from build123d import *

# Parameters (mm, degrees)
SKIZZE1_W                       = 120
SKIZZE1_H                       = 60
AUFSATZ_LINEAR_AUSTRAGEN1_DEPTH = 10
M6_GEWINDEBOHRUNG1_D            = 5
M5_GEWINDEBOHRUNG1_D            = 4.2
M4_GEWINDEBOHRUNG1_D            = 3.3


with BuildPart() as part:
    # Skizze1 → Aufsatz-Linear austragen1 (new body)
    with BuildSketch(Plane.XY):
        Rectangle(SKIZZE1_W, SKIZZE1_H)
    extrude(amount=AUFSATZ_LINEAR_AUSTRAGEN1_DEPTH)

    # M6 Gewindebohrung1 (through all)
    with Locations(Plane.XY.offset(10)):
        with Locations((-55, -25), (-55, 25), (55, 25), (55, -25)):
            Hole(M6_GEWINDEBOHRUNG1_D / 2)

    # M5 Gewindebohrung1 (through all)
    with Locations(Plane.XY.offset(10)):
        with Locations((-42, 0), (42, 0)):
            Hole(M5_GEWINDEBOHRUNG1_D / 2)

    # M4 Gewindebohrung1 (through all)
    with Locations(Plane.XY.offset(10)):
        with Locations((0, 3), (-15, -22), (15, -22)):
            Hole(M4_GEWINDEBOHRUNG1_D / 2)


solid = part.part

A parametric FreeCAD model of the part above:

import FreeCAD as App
import Part
import Sketcher
from FreeCAD import Vector
Q = App.Units.Quantity

doc = App.newDocument("Part")
params = doc.addObject("Spreadsheet::Sheet", "Params")
for row, (alias, value) in enumerate([
    ("sketch1_width", "120 mm"),
    ("sketch1_height", "60 mm"),
    ("pad1_length", "10 mm"),
    ("sketch2_diameter", "5 mm"),
    ("hole_diameter", "5 mm"),
    ("sketch3_diameter", "4.2 mm"),
    ("hole2_diameter", "4.2 mm"),
    ("sketch4_diameter", "3.3 mm"),
    ("hole3_diameter", "3.3 mm"),
], start=1):
    params.set(f"A{row}", alias)
    params.set(f"B{row}", "=" + value)
    params.setAlias(f"B{row}", alias)

body = doc.addObject("PartDesign::Body", "Body")

# Sketch on XY plane
sketch1 = body.newObject("Sketcher::SketchObject", "Sketch")
sketch1.AttachmentSupport = (doc.getObject("XY_Plane"), [""])
sketch1.MapMode = "FlatFace"
sketch1.addGeometry([
    Part.LineSegment(Vector(-60, 30, 0), Vector(-60, -30, 0)),
    Part.LineSegment(Vector(-60, -30, 0), Vector(60, -30, 0)),
    Part.LineSegment(Vector(60, -30, 0), Vector(60, 30, 0)),
    Part.LineSegment(Vector(60, 30, 0), Vector(-60, 30, 0)),
], False)
sketch1.addConstraint([
    Sketcher.Constraint("Coincident", 0, 2, 1, 1),
    Sketcher.Constraint("Coincident", 1, 2, 2, 1),
    Sketcher.Constraint("Coincident", 2, 2, 3, 1),
    Sketcher.Constraint("Coincident", 3, 2, 0, 1),
    Sketcher.Constraint("Vertical", 0),
    Sketcher.Constraint("Horizontal", 1),
    Sketcher.Constraint("Vertical", 2),
    Sketcher.Constraint("Horizontal", 3),
    Sketcher.Constraint("Symmetric", 0, 2, 2, 2, -1, 1),
    Sketcher.Constraint("DistanceX", 1, 1, 1, 2, Q("120 mm")),
    Sketcher.Constraint("DistanceY", 0, 2, 0, 1, Q("60 mm")),
])
sketch1.setExpression("Constraints[9]", "Params.sketch1_width")
sketch1.setExpression("Constraints[10]", "Params.sketch1_height")
pad1 = body.newObject("PartDesign::Pad", "Pad")
pad1.Profile = sketch1
pad1.setExpression("Length", "Params.pad1_length")

# Sketch on XY plane
sketch2 = body.newObject("Sketcher::SketchObject", "Sketch001")
sketch2.AttachmentSupport = (doc.getObject("XY_Plane"), [""])
sketch2.MapMode = "FlatFace"
sketch2.AttachmentOffset = App.Placement(Vector(0, 0, 10), App.Rotation())
sketch2.addGeometry([
    Part.Circle(Vector(-55, -25, 0), Vector(0, 0, 1), 2.5),
    Part.Circle(Vector(-55, 25, 0), Vector(0, 0, 1), 2.5),
    Part.Circle(Vector(55, 25, 0), Vector(0, 0, 1), 2.5),
    Part.Circle(Vector(55, -25, 0), Vector(0, 0, 1), 2.5),
], False)
sketch2.addConstraint([
    Sketcher.Constraint("Equal", 0, 1),
    Sketcher.Constraint("Equal", 1, 2),
    Sketcher.Constraint("Equal", 2, 3),
    Sketcher.Constraint("Symmetric", 0, 3, 2, 3, -1, 1),
    Sketcher.Constraint("Symmetric", 1, 3, 3, 3, -1, 1),
    Sketcher.Constraint("Symmetric", 1, 3, 2, 3, -2),
    Sketcher.Constraint("Diameter", 0, Q("5 mm")),
    Sketcher.Constraint("DistanceX", 0, 3, -1, 1, Q("55 mm")),
    Sketcher.Constraint("DistanceY", 0, 3, -1, 1, Q("25 mm")),
])
sketch2.setExpression("Constraints[6]", "Params.sketch2_diameter")
doc.recompute()
hole = body.newObject("PartDesign::Hole", "Hole")
hole.Profile = sketch2
hole.ThreadType = "None"
hole.setExpression("Diameter", "Params.hole_diameter")
hole.DepthType = "ThroughAll"

# Sketch on XY plane
sketch3 = body.newObject("Sketcher::SketchObject", "Sketch002")
sketch3.AttachmentSupport = (doc.getObject("XY_Plane"), [""])
sketch3.MapMode = "FlatFace"
sketch3.AttachmentOffset = App.Placement(Vector(0, 0, 10), App.Rotation())
sketch3.addGeometry([
    Part.Circle(Vector(-42, 0, 0), Vector(0, 0, 1), 2.1),
    Part.Circle(Vector(42, 0, 0), Vector(0, 0, 1), 2.1),
], False)
sketch3.addConstraint([
    Sketcher.Constraint("Equal", 0, 1),
    Sketcher.Constraint("Symmetric", 0, 3, 1, 3, -1, 1),
    Sketcher.Constraint("PointOnObject", 0, 3, -1),
    Sketcher.Constraint("Diameter", 0, Q("4.2 mm")),
    Sketcher.Constraint("DistanceX", 0, 3, -1, 1, Q("42 mm")),
])
sketch3.setExpression("Constraints[3]", "Params.sketch3_diameter")
doc.recompute()
hole2 = body.newObject("PartDesign::Hole", "Hole001")
hole2.Profile = sketch3
hole2.ThreadType = "None"
hole2.setExpression("Diameter", "Params.hole2_diameter")
hole2.DepthType = "ThroughAll"

# Sketch on XY plane
sketch4 = body.newObject("Sketcher::SketchObject", "Sketch003")
sketch4.AttachmentSupport = (doc.getObject("XY_Plane"), [""])
sketch4.MapMode = "FlatFace"
sketch4.AttachmentOffset = App.Placement(Vector(0, 0, 10), App.Rotation())
sketch4.addGeometry([
    Part.Circle(Vector(0, 3, 0), Vector(0, 0, 1), 1.6),
    Part.Circle(Vector(-15, -22, 0), Vector(0, 0, 1), 1.6),
    Part.Circle(Vector(15, -22, 0), Vector(0, 0, 1), 1.6),
], False)
sketch4.addConstraint([
    Sketcher.Constraint("Equal", 0, 1),
    Sketcher.Constraint("Equal", 1, 2),
    Sketcher.Constraint("Symmetric", 1, 3, 2, 3, -2),
    Sketcher.Constraint("PointOnObject", 0, 3, -2),
    Sketcher.Constraint("Diameter", 0, Q("3.3 mm")),
    Sketcher.Constraint("DistanceY", -1, 1, 0, 3, Q("3 mm")),
    Sketcher.Constraint("DistanceX", 1, 3, -1, 1, Q("15 mm")),
    Sketcher.Constraint("DistanceY", 1, 3, -1, 1, Q("22 mm")),
])
sketch4.setExpression("Constraints[4]", "Params.sketch4_diameter")
doc.recompute()
hole3 = body.newObject("PartDesign::Hole", "Hole002")
hole3.Profile = sketch4
hole3.ThreadType = "None"
hole3.setExpression("Diameter", "Params.hole3_diameter")
hole3.DepthType = "ThroughAll"

doc.recompute()
